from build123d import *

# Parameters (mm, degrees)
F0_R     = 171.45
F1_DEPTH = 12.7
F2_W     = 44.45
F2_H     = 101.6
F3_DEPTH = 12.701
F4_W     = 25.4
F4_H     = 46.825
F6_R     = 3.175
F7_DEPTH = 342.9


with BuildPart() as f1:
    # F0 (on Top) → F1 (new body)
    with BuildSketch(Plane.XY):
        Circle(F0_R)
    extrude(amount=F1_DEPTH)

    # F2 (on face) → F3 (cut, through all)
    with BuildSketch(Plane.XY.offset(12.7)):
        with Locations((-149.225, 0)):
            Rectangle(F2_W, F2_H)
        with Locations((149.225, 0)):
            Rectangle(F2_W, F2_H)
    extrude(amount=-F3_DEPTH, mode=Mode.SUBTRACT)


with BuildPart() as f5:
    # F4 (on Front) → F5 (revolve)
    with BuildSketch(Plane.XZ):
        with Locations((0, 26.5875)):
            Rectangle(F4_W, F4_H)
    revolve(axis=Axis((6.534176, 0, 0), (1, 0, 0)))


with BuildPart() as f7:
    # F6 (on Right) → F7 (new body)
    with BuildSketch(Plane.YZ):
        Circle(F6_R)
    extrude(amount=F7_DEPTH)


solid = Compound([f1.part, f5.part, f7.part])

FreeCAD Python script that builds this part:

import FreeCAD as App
import Part
import Sketcher
Q = App.Units.Quantity

doc = App.newDocument("Part")
body = doc.addObject("PartDesign::Body", "Body")

# Sketch on XY plane
sketch1 = doc.addObject("Sketcher::SketchObject", "Sketch")
body.addObject(sketch1)
sketch1.AttachmentSupport = (doc.XY_Plane, [""])
sketch1.MapMode = "FlatFace"
sketch1.addGeometry(Part.Circle(App.Vector(0, 0, 0), App.Vector(0, 0, 1), 171), False)
sketch1.addConstraint([
    Sketcher.Constraint("Coincident", 0, 3, -1, 1),
    Sketcher.Constraint("Diameter", 0, Q("13.5 in")),
])
pad1 = doc.addObject("PartDesign::Pad", "Pad")
body.addObject(pad1)
pad1.Profile = sketch1
pad1.Length = Q("0.5 in")

# Sketch on XY plane
sketch2 = doc.addObject("Sketcher::SketchObject", "Sketch001")
body.addObject(sketch2)
sketch2.AttachmentSupport = (doc.XY_Plane, [""])
sketch2.MapMode = "FlatFace"
sketch2.AttachmentOffset = App.Placement(App.Vector(0, 0, 0.5 * 25.4), App.Rotation())
sketch2.addGeometry([
    Part.LineSegment(App.Vector(-171, 51, 0), App.Vector(-171, -51, 0)),  # 0
    Part.LineSegment(App.Vector(-171, -51, 0), App.Vector(-127, -51, 0)),  # 1
    Part.LineSegment(App.Vector(-127, -51, 0), App.Vector(-127, 51, 0)),  # 2
    Part.LineSegment(App.Vector(-127, 51, 0), App.Vector(-171, 51, 0)),  # 3
    Part.LineSegment(App.Vector(127, 51, 0), App.Vector(127, -51, 0)),  # 4
    Part.LineSegment(App.Vector(127, -51, 0), App.Vector(171, -51, 0)),  # 5
    Part.LineSegment(App.Vector(171, -51, 0), App.Vector(171, 51, 0)),  # 6
    Part.LineSegment(App.Vector(171, 51, 0), App.Vector(127, 51, 0)),  # 7
], False)
sketch2.addConstraint([
    Sketcher.Constraint("Coincident", 0, 2, 1, 1),
    Sketcher.Constraint("Coincident", 1, 2, 2, 1),
    Sketcher.Constraint("Coincident", 2, 2, 3, 1),
    Sketcher.Constraint("Coincident", 3, 2, 0, 1),
    Sketcher.Constraint("Coincident", 4, 2, 5, 1),
    Sketcher.Constraint("Coincident", 5, 2, 6, 1),
    Sketcher.Constraint("Coincident", 6, 2, 7, 1),
    Sketcher.Constraint("Coincident", 7, 2, 4, 1),
    Sketcher.Constraint("Vertical", 0),
    Sketcher.Constraint("Horizontal", 1),
    Sketcher.Constraint("Vertical", 2),
    Sketcher.Constraint("Horizontal", 3),
    Sketcher.Constraint("Vertical", 4),
    Sketcher.Constraint("Horizontal", 5),
    Sketcher.Constraint("Vertical", 6),
    Sketcher.Constraint("Horizontal", 7),
    Sketcher.Constraint("Symmetric", 2, 2, 4, 2, -1, 1),
    Sketcher.Constraint("Symmetric", 0, 2, 6, 2, -1, 1),
    Sketcher.Constraint("Horizontal", 1, 2, 4, 2),
    Sketcher.Constraint("DistanceY", 0, 2, 0, 1, Q("4 in")),
    Sketcher.Constraint("DistanceX", 1, 2, -1, 1, Q("5 in")),
    Sketcher.Constraint("DistanceX", 1, 1, 1, 2, Q("1.75 in")),
])
pocket1 = doc.addObject("PartDesign::Pocket", "Pocket")
body.addObject(pocket1)
pocket1.Profile = sketch2
pocket1.Type = "ThroughAll"
body2 = doc.addObject("PartDesign::Body", "Body001")

# Sketch on XZ plane
sketch3 = doc.addObject("Sketcher::SketchObject", "Sketch002")
body2.addObject(sketch3)
sketch3.AttachmentSupport = (doc.getObject("XZ_Plane001"), [""])
sketch3.MapMode = "FlatFace"
sketch3.addGeometry([
    Part.LineSegment(App.Vector(-13, 50, 0), App.Vector(-13, 3, 0)),
    Part.LineSegment(App.Vector(-13, 3, 0), App.Vector(13, 3, 0)),
    Part.LineSegment(App.Vector(13, 3, 0), App.Vector(13, 50, 0)),
    Part.LineSegment(App.Vector(13, 50, 0), App.Vector(-13, 50, 0)),
], False)
sketch3.addConstraint([
    Sketcher.Constraint("Coincident", 0, 2, 1, 1),
    Sketcher.Constraint("Coincident", 1, 2, 2, 1),
    Sketcher.Constraint("Coincident", 2, 2, 3, 1),
    Sketcher.Constraint("Coincident", 3, 2, 0, 1),
    Sketcher.Constraint("Vertical", 0),
    Sketcher.Constraint("Horizontal", 1),
    Sketcher.Constraint("Vertical", 2),
    Sketcher.Constraint("Horizontal", 3),
    Sketcher.Constraint("DistanceX", 1, 1, 1, 2, Q("1 in")),
    Sketcher.Constraint("DistanceX", 0, 2, -1, 1, Q("0.5 in")),
    Sketcher.Constraint("DistanceY", -1, 1, 0, 2, Q("0.125 in")),
    Sketcher.Constraint("DistanceY", 0, 2, 0, 1, 46.825),
])
revolution = doc.addObject("PartDesign::Revolution", "Revolution")
body2.addObject(revolution)
revolution.Profile = sketch3
revolution.ReferenceAxis = (sketch3, ["H_Axis"])
revolution.Angle = 360
body3 = doc.addObject("PartDesign::Body", "Body002")

# Sketch on YZ plane
sketch4 = doc.addObject("Sketcher::SketchObject", "Sketch003")
body3.addObject(sketch4)
sketch4.AttachmentSupport = (doc.getObject("YZ_Plane002"), [""])
sketch4.MapMode = "FlatFace"
sketch4.addGeometry(Part.Circle(App.Vector(0, 0, 0), App.Vector(0, 0, 1), 3.2), False)
sketch4.addConstraint([
    Sketcher.Constraint("Coincident", 0, 3, -1, 1),
    Sketcher.Constraint("Diameter", 0, Q("0.25 in")),
])
pad2 = doc.addObject("PartDesign::Pad", "Pad001")
body3.addObject(pad2)
pad2.Profile = sketch4
pad2.Length = Q("13.5 in")

doc.recompute()
